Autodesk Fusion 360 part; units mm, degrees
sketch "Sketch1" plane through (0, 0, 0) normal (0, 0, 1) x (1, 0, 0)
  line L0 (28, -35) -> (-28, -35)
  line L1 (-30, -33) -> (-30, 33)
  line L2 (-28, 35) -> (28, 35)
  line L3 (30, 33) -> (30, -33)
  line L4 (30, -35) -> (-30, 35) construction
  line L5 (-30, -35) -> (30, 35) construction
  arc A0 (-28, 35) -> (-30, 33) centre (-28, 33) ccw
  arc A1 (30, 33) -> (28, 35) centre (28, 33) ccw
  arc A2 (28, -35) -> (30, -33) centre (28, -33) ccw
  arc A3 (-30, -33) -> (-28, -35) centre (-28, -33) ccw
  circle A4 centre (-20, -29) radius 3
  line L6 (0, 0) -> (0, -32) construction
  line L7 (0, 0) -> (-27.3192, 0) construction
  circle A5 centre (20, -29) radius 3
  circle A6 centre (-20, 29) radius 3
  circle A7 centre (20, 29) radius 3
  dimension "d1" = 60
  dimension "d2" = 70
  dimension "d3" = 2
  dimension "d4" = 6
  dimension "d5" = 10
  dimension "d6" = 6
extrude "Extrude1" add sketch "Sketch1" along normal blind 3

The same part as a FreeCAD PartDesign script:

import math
import FreeCAD as App
import Part
import Sketcher

doc = App.newDocument("Part")
body = doc.addObject("PartDesign::Body", "Body")

sketch1 = doc.addObject("Sketcher::SketchObject", "Sketch")
body.addObject(sketch1)
sketch1.AttachmentSupport = (doc.XY_Plane, [""])
sketch1.MapMode = "FlatFace"
sketch1.addGeometry([
    Part.LineSegment(App.Vector(-28, -35, 0), App.Vector(28, -35, 0)),
    Part.ArcOfCircle(Part.Circle(App.Vector(28, -33, 0), App.Vector(0, 0, 1), 2), math.radians(-90), math.radians(0)),
    Part.LineSegment(App.Vector(30, -33, 0), App.Vector(30, 33, 0)),
    Part.ArcOfCircle(Part.Circle(App.Vector(28, 33, 0), App.Vector(0, 0, 1), 2), math.radians(0), math.radians(90)),
    Part.LineSegment(App.Vector(28, 35, 0), App.Vector(-28, 35, 0)),
    Part.ArcOfCircle(Part.Circle(App.Vector(-28, 33, 0), App.Vector(0, 0, 1), 2), math.radians(90), math.radians(180)),
    Part.LineSegment(App.Vector(-30, 33, 0), App.Vector(-30, -33, 0)),
    Part.ArcOfCircle(Part.Circle(App.Vector(-28, -33, 0), App.Vector(0, 0, 1), 2), math.radians(180), math.radians(270)),
    Part.Circle(App.Vector(-20, -29, 0), App.Vector(0, 0, 1), 3),
    Part.Circle(App.Vector(20, -29, 0), App.Vector(0, 0, 1), 3),
    Part.Circle(App.Vector(-20, 29, 0), App.Vector(0, 0, 1), 3),
    Part.Circle(App.Vector(20, 29, 0), App.Vector(0, 0, 1), 3),
], False)
sketch1.addConstraint([
    Sketcher.Constraint("Tangent", 0, 2, 1, 1),
    Sketcher.Constraint("Tangent", 1, 2, 2, 1),
    Sketcher.Constraint("Tangent", 2, 2, 3, 1),
    Sketcher.Constraint("Tangent", 3, 2, 4, 1),
    Sketcher.Constraint("Tangent", 4, 2, 5, 1),
    Sketcher.Constraint("Tangent", 5, 2, 6, 1),
    Sketcher.Constraint("Tangent", 6, 2, 7, 1),
    Sketcher.Constraint("Tangent", 7, 2, 0, 1),
    Sketcher.Constraint("Horizontal", 0),
    Sketcher.Constraint("Vertical", 2),
    Sketcher.Constraint("Horizontal", 4),
    Sketcher.Constraint("Vertical", 6),
    Sketcher.Constraint("Equal", 1, 3),
    Sketcher.Constraint("Equal", 3, 5),
    Sketcher.Constraint("Equal", 5, 7),
    Sketcher.Constraint("Equal", 8, 9),
    Sketcher.Constraint("Equal", 9, 10),
    Sketcher.Constraint("Equal", 10, 11),
    Sketcher.Constraint("Symmetric", 1, 3, 5, 3, -1, 1),
    Sketcher.Constraint("Symmetric", 9, 3, 10, 3, -1, 1),
    Sketcher.Constraint("Symmetric", 8, 3, 11, 3, -1, 1),
    Sketcher.Constraint("Symmetric", 8, 3, 9, 3, -2),
    Sketcher.Constraint("Diameter", 8, 6.0),
    Sketcher.Constraint("Radius", 1, 2.0),
    Sketcher.Constraint("DistanceY", 0, 2, 9, 3, 6.0),
    Sketcher.Constraint("DistanceX", 9, 3, 1, 2, 10.0),
    Sketcher.Constraint("DistanceX", 0, 1, 0, 2, 56.0),
    Sketcher.Constraint("DistanceY", 2, 1, 2, 2, 66.0),
])
pad1 = doc.addObject("PartDesign::Pad", "Pad")
body.addObject(pad1)
pad1.Profile = sketch1
pad1.Length = 3

doc.recompute()
